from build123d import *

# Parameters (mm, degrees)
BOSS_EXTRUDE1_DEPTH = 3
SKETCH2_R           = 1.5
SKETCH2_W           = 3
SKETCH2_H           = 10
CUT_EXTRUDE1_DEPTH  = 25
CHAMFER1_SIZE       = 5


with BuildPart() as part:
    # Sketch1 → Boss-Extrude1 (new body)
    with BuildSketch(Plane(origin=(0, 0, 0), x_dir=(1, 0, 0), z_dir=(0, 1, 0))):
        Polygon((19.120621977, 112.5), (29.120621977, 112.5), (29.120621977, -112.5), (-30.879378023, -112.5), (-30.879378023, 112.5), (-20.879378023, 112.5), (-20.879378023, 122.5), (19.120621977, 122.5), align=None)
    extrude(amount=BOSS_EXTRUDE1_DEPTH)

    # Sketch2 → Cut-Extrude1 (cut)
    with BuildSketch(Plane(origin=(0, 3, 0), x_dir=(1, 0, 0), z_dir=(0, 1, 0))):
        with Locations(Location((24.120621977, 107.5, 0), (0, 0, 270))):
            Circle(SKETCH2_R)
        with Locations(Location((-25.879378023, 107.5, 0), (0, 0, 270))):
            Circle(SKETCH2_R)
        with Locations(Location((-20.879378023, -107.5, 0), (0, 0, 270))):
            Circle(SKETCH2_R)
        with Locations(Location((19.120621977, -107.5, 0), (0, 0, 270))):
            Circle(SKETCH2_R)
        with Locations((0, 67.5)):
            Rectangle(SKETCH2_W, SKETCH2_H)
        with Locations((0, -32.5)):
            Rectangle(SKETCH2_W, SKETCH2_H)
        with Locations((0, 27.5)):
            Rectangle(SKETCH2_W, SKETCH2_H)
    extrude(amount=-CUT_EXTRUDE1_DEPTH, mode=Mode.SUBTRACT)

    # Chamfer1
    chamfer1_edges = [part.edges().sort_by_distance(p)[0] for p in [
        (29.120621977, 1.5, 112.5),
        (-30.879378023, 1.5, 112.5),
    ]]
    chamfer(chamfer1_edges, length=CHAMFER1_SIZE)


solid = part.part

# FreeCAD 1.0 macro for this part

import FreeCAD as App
import Part
import Sketcher


def edges_at(feature, points):
    """Names of the edges that pass closest to the given points."""
    edges = feature.Shape.Edges
    near = lambda p: min(range(len(edges)), key=lambda i: edges[i].distToShape(Part.Vertex(*p))[0])
    return sorted({f"Edge{near(p) + 1}" for p in points})

doc = App.newDocument("Part")
body = doc.addObject("PartDesign::Body", "Body")

# Sketch on XZ plane
sketch1 = body.newObject("Sketcher::SketchObject", "Sketch")
sketch1.AttachmentSupport = (doc.getObject("XZ_Plane"), [""])
sketch1.MapMode = "FlatFace"
sketch1.addGeometry([
    Part.LineSegment(App.Vector(29, -112, 0), App.Vector(19, -112, 0)),  # 0
    Part.LineSegment(App.Vector(19, -112, 0), App.Vector(19, -122, 0)),  # 1
    Part.LineSegment(App.Vector(19, -122, 0), App.Vector(-21, -122, 0)),  # 2
    Part.LineSegment(App.Vector(-21, -122, 0), App.Vector(-21, -112, 0)),  # 3
    Part.LineSegment(App.Vector(-21, -112, 0), App.Vector(-31, -112, 0)),  # 4
    Part.LineSegment(App.Vector(-31, -112, 0), App.Vector(-31, 112, 0)),  # 5
    Part.LineSegment(App.Vector(-31, 112, 0), App.Vector(29, 112, 0)),  # 6
    Part.LineSegment(App.Vector(29, 112, 0), App.Vector(29, -112, 0)),  # 7
], False)
sketch1.addConstraint([
    Sketcher.Constraint("Coincident", 0, 2, 1, 1),
    Sketcher.Constraint("Coincident", 1, 2, 2, 1),
    Sketcher.Constraint("Coincident", 2, 2, 3, 1),
    Sketcher.Constraint("Coincident", 3, 2, 4, 1),
    Sketcher.Constraint("Coincident", 4, 2, 5, 1),
    Sketcher.Constraint("Coincident", 5, 2, 6, 1),
    Sketcher.Constraint("Coincident", 6, 2, 7, 1),
    Sketcher.Constraint("Coincident", 7, 2, 0, 1),
    Sketcher.Constraint("Horizontal", 0),
    Sketcher.Constraint("Vertical", 1),
    Sketcher.Constraint("Horizontal", 2),
    Sketcher.Constraint("Vertical", 3),
    Sketcher.Constraint("Horizontal", 4),
    Sketcher.Constraint("Vertical", 5),
    Sketcher.Constraint("Horizontal", 6),
    Sketcher.Constraint("Vertical", 7),
    Sketcher.Constraint("Horizontal", 0, 2, 3, 2),
    Sketcher.Constraint("Equal", 0, 4),
    Sketcher.Constraint("Equal", 4, 1),
    Sketcher.Constraint("DistanceX", 0, 2, 0, 1, 10.0),
    Sketcher.Constraint("DistanceX", 2, 2, 2, 1, 40.0),
    Sketcher.Constraint("DistanceY", 5, 1, 5, 2, 225.0),
    Sketcher.Constraint("DistanceY", 0, 2, -1, 1, 112.5),
    Sketcher.Constraint("DistanceX", -1, 1, 0, 2, 19.120622),
])
pad1 = body.newObject("PartDesign::Pad", "Pad")
pad1.Profile = sketch1
pad1.Length = 3
pad1.Reversed = True

# Sketch on XZ plane
sketch2 = body.newObject("Sketcher::SketchObject", "Sketch001")
sketch2.AttachmentSupport = (doc.getObject("XZ_Plane"), [""])
sketch2.MapMode = "FlatFace"
sketch2.AttachmentOffset = App.Placement(App.Vector(0, 0, -3), App.Rotation())
sketch2.addGeometry([
    Part.Circle(App.Vector(24.1, -107.5, 0), App.Vector(0, 0, 1), 1.5),  # 0
    Part.Circle(App.Vector(-25.9, -107.5, 0), App.Vector(0, 0, 1), 1.5),  # 1
    Part.Circle(App.Vector(-20.9, 107.5, 0), App.Vector(0, 0, 1), 1.5),  # 2
    Part.Circle(App.Vector(19.1, 107.5, 0), App.Vector(0, 0, 1), 1.5),  # 3
    Part.LineSegment(App.Vector(-1.5, -72.5, 0), App.Vector(-1.5, -62.5, 0)),  # 4
    Part.LineSegment(App.Vector(-1.5, -62.5, 0), App.Vector(1.5, -62.5, 0)),  # 5
    Part.LineSegment(App.Vector(1.5, -62.5, 0), App.Vector(1.5, -72.5, 0)),  # 6
    Part.LineSegment(App.Vector(1.5, -72.5, 0), App.Vector(-1.5, -72.5, 0)),  # 7
    Part.LineSegment(App.Vector(-1.5, 27.5, 0), App.Vector(-1.5, 37.5, 0)),  # 8
    Part.LineSegment(App.Vector(-1.5, 37.5, 0), App.Vector(1.5, 37.5, 0)),  # 9
    Part.LineSegment(App.Vector(1.5, 37.5, 0), App.Vector(1.5, 27.5, 0)),  # 10
    Part.LineSegment(App.Vector(1.5, 27.5, 0), App.Vector(-1.5, 27.5, 0)),  # 11
    Part.LineSegment(App.Vector(-1.5, -32.5, 0), App.Vector(-1.5, -22.5, 0)),  # 12
    Part.LineSegment(App.Vector(-1.5, -22.5, 0), App.Vector(1.5, -22.5, 0)),  # 13
    Part.LineSegment(App.Vector(1.5, -22.5, 0), App.Vector(1.5, -32.5, 0)),  # 14
    Part.LineSegment(App.Vector(1.5, -32.5, 0), App.Vector(-1.5, -32.5, 0)),  # 15
], False)
sketch2.addConstraint([
    Sketcher.Constraint("Coincident", 4, 2, 5, 1),
    Sketcher.Constraint("Coincident", 5, 2, 6, 1),
    Sketcher.Constraint("Coincident", 6, 2, 7, 1),
    Sketcher.Constraint("Coincident", 7, 2, 4, 1),
    Sketcher.Constraint("Coincident", 8, 2, 9, 1),
    Sketcher.Constraint("Coincident", 9, 2, 10, 1),
    Sketcher.Constraint("Coincident", 10, 2, 11, 1),
    Sketcher.Constraint("Coincident", 11, 2, 8, 1),
    Sketcher.Constraint("Coincident", 12, 2, 13, 1),
    Sketcher.Constraint("Coincident", 13, 2, 14, 1),
    Sketcher.Constraint("Coincident", 14, 2, 15, 1),
    Sketcher.Constraint("Coincident", 15, 2, 12, 1),
    Sketcher.Constraint("Vertical", 4),
    Sketcher.Constraint("Horizontal", 5),
    Sketcher.Constraint("Vertical", 6),
    Sketcher.Constraint("Horizontal", 7),
    Sketcher.Constraint("Vertical", 8),
    Sketcher.Constraint("Horizontal", 9),
    Sketcher.Constraint("Vertical", 10),
    Sketcher.Constraint("Horizontal", 11),
    Sketcher.Constraint("Vertical", 12),
    Sketcher.Constraint("Horizontal", 13),
    Sketcher.Constraint("Vertical", 14),
    Sketcher.Constraint("Horizontal", 15),
    Sketcher.Constraint("Equal", 0, 1),
    Sketcher.Constraint("Equal", 1, 2),
    Sketcher.Constraint("Equal", 2, 3),
    Sketcher.Constraint("Horizontal", 0, 3, 1, 3),
    Sketcher.Constraint("Horizontal", 2, 3, 3, 3),
    Sketcher.Constraint("Vertical", 7, 2, 8, 2),
    Sketcher.Constraint("Vertical", 6, 2, 9, 2),
    Sketcher.Constraint("Vertical", 11, 2, 12, 2),
    Sketcher.Constraint("Vertical", 10, 2, 13, 2),
    Sketcher.Constraint("Equal", 6, 8),
    Sketcher.Constraint("Equal", 10, 12),
    Sketcher.Constraint("Diameter", 0, 3.0),
    Sketcher.Constraint("DistanceX", 5, 1, 5, 2, 3.0),
    Sketcher.Constraint("DistanceY", 4, 1, 4, 2, 10.0),
    Sketcher.Constraint("DistanceX", 1, 3, 0, 3, 50.0),
    Sketcher.Constraint("DistanceX", 1, 3, 2, 3, 5.0),
    Sketcher.Constraint("DistanceY", 1, 3, 2, 3, 215.0),
    Sketcher.Constraint("DistanceX", 2, 3, 3, 3, 40.0),
    Sketcher.Constraint("DistanceY", 1, 3, 4, 2, 45.0),
    Sketcher.Constraint("DistanceY", 8, 2, 2, 3, 70.0),
    Sketcher.Constraint("DistanceY", 4, 2, 12, 2, 40.0),
    Sketcher.Constraint("DistanceY", 0, 3, -1, 1, 107.5),
    Sketcher.Constraint("DistanceX", 4, 2, -1, 1, 1.5),
    Sketcher.Constraint("DistanceX", -1, 1, 0, 3, 24.120622),
])
pocket1 = body.newObject("PartDesign::Pocket", "Pocket")
pocket1.Profile = sketch2
pocket1.Length = 25
pocket1.Reversed = True
doc.recompute()

chamfer = body.newObject("PartDesign::Chamfer", "Chamfer")
chamfer.Base = (pocket1, edges_at(pocket1, [(29.121, 1.5, 112.5), (-30.879, 1.5, 112.5)]))
chamfer.Size = 5

doc.recompute()
